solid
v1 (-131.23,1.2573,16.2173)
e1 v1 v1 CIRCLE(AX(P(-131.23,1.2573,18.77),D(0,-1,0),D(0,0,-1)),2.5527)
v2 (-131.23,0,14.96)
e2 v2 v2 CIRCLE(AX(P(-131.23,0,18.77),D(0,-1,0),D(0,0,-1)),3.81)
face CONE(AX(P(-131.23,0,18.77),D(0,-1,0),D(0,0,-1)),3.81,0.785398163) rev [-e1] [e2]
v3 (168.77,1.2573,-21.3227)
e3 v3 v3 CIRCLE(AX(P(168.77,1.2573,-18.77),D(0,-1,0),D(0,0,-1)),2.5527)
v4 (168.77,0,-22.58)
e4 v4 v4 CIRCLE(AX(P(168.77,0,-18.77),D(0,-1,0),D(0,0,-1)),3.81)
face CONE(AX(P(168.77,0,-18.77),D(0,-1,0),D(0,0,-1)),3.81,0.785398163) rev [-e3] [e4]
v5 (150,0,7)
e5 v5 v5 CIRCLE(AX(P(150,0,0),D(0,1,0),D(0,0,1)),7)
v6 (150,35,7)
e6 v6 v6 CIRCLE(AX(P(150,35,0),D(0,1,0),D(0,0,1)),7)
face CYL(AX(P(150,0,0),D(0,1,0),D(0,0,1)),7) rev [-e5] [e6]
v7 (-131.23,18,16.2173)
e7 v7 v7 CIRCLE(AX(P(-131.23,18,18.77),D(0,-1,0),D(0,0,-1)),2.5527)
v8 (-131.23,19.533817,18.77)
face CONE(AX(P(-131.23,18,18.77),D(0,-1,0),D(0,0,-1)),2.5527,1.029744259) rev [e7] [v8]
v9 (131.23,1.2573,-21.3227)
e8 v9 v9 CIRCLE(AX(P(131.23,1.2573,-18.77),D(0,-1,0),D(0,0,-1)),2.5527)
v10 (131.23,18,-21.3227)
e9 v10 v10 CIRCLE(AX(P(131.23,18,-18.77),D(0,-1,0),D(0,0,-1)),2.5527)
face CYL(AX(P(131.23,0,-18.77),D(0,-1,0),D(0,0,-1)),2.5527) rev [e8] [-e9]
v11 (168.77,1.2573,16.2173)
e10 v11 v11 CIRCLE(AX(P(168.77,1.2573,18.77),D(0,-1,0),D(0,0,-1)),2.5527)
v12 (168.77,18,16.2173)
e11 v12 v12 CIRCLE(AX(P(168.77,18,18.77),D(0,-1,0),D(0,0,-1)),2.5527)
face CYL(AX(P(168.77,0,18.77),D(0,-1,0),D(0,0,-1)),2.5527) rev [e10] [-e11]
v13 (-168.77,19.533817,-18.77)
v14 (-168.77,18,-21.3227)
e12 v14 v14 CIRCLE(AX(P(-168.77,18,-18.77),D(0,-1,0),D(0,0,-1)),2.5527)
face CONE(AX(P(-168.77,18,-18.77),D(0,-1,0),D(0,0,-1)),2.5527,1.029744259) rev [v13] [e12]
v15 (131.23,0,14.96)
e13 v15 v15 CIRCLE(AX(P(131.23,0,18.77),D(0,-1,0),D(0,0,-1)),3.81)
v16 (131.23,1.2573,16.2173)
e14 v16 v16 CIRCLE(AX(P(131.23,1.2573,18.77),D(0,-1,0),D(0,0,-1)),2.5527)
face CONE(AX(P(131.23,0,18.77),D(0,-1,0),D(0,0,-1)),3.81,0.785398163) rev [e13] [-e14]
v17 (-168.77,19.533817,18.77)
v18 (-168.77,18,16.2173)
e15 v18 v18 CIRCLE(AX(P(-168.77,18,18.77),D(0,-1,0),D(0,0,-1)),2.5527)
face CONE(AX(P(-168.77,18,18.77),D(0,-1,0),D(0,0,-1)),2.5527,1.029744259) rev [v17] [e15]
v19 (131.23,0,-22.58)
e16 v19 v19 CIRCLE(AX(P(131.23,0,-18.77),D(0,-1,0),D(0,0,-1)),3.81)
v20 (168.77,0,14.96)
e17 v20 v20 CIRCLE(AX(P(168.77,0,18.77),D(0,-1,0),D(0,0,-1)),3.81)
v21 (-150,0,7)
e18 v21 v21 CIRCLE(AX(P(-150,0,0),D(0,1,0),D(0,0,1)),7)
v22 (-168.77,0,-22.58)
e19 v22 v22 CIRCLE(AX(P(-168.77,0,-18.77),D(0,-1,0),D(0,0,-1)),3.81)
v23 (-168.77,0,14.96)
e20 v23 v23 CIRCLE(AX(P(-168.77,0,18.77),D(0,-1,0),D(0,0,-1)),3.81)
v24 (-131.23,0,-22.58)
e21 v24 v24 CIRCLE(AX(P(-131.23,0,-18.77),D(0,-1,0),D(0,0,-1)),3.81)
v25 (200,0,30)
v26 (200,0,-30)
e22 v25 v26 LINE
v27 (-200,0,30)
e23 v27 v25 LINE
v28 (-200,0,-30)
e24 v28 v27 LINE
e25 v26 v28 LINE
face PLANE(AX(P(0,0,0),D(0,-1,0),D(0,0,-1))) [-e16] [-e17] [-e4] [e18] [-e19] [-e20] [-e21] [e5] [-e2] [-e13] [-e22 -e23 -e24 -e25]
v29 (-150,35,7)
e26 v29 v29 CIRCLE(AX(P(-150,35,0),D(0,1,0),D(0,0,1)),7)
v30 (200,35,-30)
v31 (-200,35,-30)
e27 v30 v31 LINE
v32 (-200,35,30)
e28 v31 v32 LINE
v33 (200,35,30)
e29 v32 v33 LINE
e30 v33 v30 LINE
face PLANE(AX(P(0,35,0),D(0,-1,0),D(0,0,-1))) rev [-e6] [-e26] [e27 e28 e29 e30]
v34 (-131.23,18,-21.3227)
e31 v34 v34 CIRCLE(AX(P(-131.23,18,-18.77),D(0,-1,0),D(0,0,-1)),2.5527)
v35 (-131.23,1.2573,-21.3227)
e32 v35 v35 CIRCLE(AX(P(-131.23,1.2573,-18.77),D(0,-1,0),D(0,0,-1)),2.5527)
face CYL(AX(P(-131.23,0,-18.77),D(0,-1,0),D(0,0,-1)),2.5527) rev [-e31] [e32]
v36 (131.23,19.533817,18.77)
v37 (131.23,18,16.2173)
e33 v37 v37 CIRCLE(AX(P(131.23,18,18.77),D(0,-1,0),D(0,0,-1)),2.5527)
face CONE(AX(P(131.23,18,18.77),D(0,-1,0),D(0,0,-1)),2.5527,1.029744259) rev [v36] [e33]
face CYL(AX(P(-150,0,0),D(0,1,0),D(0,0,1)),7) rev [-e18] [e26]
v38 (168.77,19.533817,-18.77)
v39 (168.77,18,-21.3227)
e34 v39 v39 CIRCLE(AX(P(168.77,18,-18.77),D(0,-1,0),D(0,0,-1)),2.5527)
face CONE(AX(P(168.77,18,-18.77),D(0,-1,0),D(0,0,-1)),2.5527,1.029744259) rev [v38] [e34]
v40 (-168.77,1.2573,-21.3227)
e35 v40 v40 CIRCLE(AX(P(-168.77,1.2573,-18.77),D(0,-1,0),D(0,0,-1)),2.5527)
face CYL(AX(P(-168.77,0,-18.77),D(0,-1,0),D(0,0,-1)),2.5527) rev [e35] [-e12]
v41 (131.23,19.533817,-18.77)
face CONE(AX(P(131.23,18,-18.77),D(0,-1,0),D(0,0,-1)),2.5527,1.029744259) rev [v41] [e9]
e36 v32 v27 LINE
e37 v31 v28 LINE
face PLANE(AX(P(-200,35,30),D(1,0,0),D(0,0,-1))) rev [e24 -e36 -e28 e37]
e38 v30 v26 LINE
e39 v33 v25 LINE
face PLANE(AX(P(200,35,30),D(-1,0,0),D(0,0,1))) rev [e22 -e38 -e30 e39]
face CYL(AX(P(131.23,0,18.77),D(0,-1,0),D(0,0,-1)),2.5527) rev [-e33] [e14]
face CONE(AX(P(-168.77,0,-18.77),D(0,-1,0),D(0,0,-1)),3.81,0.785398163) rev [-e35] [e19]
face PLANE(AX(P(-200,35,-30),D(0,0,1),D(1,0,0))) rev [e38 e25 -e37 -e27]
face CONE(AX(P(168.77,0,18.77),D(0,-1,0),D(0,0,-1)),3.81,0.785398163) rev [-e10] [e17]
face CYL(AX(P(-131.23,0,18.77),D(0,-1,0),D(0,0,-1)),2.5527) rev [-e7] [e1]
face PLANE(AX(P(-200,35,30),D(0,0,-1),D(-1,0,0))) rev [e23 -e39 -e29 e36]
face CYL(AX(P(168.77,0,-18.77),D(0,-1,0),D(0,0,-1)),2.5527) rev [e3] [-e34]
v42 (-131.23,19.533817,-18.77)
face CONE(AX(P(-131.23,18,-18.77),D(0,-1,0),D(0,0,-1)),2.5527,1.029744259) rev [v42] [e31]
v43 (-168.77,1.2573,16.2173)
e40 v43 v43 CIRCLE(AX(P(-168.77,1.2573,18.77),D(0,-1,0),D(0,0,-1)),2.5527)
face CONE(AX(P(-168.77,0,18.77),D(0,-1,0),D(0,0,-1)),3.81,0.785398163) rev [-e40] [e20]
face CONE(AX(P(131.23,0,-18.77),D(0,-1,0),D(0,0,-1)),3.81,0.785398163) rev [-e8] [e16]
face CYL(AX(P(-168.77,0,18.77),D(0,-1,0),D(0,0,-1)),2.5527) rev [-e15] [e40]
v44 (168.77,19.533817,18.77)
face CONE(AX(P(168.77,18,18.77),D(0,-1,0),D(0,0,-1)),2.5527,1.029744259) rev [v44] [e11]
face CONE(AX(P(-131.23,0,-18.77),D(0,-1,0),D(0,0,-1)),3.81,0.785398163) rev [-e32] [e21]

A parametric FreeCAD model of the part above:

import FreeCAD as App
import Part
import Sketcher
Q = App.Units.Quantity


def add_polygon(sketch, points):
    """Adds a closed chain of lines whose ends are joined by coincident constraints."""
    first, n = sketch.GeometryCount, len(points)
    for a, b in zip(points, points[1:] + points[:1]):
        sketch.addGeometry(Part.LineSegment(App.Vector(*a, 0), App.Vector(*b, 0)), False)
    for i in range(n):
        sketch.addConstraint(Sketcher.Constraint("Coincident", first + i, 2, first + (i + 1) % n, 1))

doc = App.newDocument("Part")
params = doc.addObject("Spreadsheet::Sheet", "Params")
for row, (alias, value) in enumerate([
    ("sketch1_width", "400 mm"),
    ("sketch1_height", "60 mm"),
    ("pad1_length", "35 mm"),
    ("sketch2_diameter", "14 mm"),
    ("hole_diameter", "5.1054 mm"),
    ("hole_depth", "18 mm"),
    ("hole_csink_diameter", "7.62 mm"),
], start=1):
    params.set(f"A{row}", alias)
    params.set(f"B{row}", "=" + value)
    params.setAlias(f"B{row}", alias)

body = doc.addObject("PartDesign::Body", "Body")

sketch1 = body.newObject("Sketcher::SketchObject", "Sketch")
sketch1.AttachmentSupport = (doc.getObject("XZ_Plane"), [""])
sketch1.MapMode = "FlatFace"
add_polygon(sketch1, [(-200, -30), (-200, 30), (200, 30), (200, -30)])
sketch1.addConstraint(Sketcher.Constraint("Vertical", 0))
sketch1.addConstraint(Sketcher.Constraint("Horizontal", 1))
sketch1.addConstraint(Sketcher.Constraint("Vertical", 2))
sketch1.addConstraint(Sketcher.Constraint("Horizontal", 3))
sketch1.addConstraint(Sketcher.Constraint("Symmetric", 0, 2, 2, 2, -1, 1))
sketch1.addConstraint(Sketcher.Constraint("DistanceX", 1, 1, 1, 2, Q("400 mm")))
sketch1.addConstraint(Sketcher.Constraint("DistanceY", 0, 1, 0, 2, Q("60 mm")))
sketch1.setExpression("Constraints[9]", "Params.sketch1_width")
sketch1.setExpression("Constraints[10]", "Params.sketch1_height")
pad1 = body.newObject("PartDesign::Pad", "Pad")
pad1.Profile = sketch1
pad1.setExpression("Length", "Params.pad1_length")
pad1.Reversed = True

sketch2 = body.newObject("Sketcher::SketchObject", "Sketch001")
sketch2.AttachmentSupport = (doc.getObject("XZ_Plane"), [""])
sketch2.MapMode = "FlatFace"
sketch2.AttachmentOffset = App.Placement(App.Vector(0, 0, -35), App.Rotation())
sketch2.addGeometry(Part.Circle(App.Vector(-150, 0, 0), App.Vector(0, 0, 1), 7), False)
sketch2.addGeometry(Part.Circle(App.Vector(150, 0, 0), App.Vector(0, 0, 1), 7), False)
sketch2.addConstraint(Sketcher.Constraint("Equal", 0, 1))
sketch2.addConstraint(Sketcher.Constraint("Symmetric", 0, 3, 1, 3, -1, 1))
sketch2.addConstraint(Sketcher.Constraint("PointOnObject", 0, 3, -1))
sketch2.addConstraint(Sketcher.Constraint("Diameter", 0, Q("14 mm")))
sketch2.addConstraint(Sketcher.Constraint("DistanceX", 0, 3, -1, 1, Q("150 mm")))
sketch2.setExpression("Constraints[3]", "Params.sketch2_diameter")
pocket1 = body.newObject("PartDesign::Pocket", "Pocket")
pocket1.Profile = sketch2
pocket1.Type = "ThroughAll"
pocket1.Reversed = True

sketch3 = body.newObject("Sketcher::SketchObject", "Sketch002")
sketch3.AttachmentSupport = (doc.getObject("XZ_Plane"), [""])
sketch3.MapMode = "FlatFace"
sketch3.addGeometry(Part.Circle(App.Vector(-168.8, 18.8, 0), App.Vector(0, 0, 1), 2.6), False)
sketch3.addGeometry(Part.Circle(App.Vector(-131.2, 18.8, 0), App.Vector(0, 0, 1), 2.6), False)
sketch3.addGeometry(Part.Circle(App.Vector(-131.2, -18.8, 0), App.Vector(0, 0, 1), 2.6), False)
sketch3.addGeometry(Part.Circle(App.Vector(-168.8, -18.8, 0), App.Vector(0, 0, 1), 2.6), False)
sketch3.addGeometry(Part.Circle(App.Vector(131.2, 18.8, 0), App.Vector(0, 0, 1), 2.6), False)
sketch3.addGeometry(Part.Circle(App.Vector(168.8, 18.8, 0), App.Vector(0, 0, 1), 2.6), False)
sketch3.addGeometry(Part.Circle(App.Vector(168.8, -18.8, 0), App.Vector(0, 0, 1), 2.6), False)
sketch3.addGeometry(Part.Circle(App.Vector(131.2, -18.8, 0), App.Vector(0, 0, 1), 2.6), False)
sketch3.addConstraint(Sketcher.Constraint("Equal", 0, 1))
sketch3.addConstraint(Sketcher.Constraint("Equal", 1, 2))
sketch3.addConstraint(Sketcher.Constraint("Equal", 2, 3))
sketch3.addConstraint(Sketcher.Constraint("Equal", 3, 4))
sketch3.addConstraint(Sketcher.Constraint("Equal", 4, 5))
sketch3.addConstraint(Sketcher.Constraint("Equal", 5, 6))
sketch3.addConstraint(Sketcher.Constraint("Equal", 6, 7))
sketch3.addConstraint(Sketcher.Constraint("Symmetric", 2, 3, 4, 3, -1, 1))
sketch3.addConstraint(Sketcher.Constraint("Symmetric", 3, 3, 5, 3, -1, 1))
sketch3.addConstraint(Sketcher.Constraint("Symmetric", 0, 3, 6, 3, -1, 1))
sketch3.addConstraint(Sketcher.Constraint("Symmetric", 1, 3, 7, 3, -1, 1))
sketch3.addConstraint(Sketcher.Constraint("Symmetric", 1, 3, 4, 3, -2))
sketch3.addConstraint(Sketcher.Constraint("Symmetric", 0, 3, 5, 3, -2))
sketch3.addConstraint(Sketcher.Constraint("Horizontal", 0, 3, 1, 3))
sketch3.addConstraint(Sketcher.Constraint("DistanceX", 0, 3, 4, 3, Q("300 mm")))
sketch3.addConstraint(Sketcher.Constraint("Diameter", 0, Q("5.1054 mm")))
sketch3.addConstraint(Sketcher.Constraint("DistanceX", 0, 3, -1, 1, Q("168.77 mm")))
sketch3.addConstraint(Sketcher.Constraint("DistanceY", -1, 1, 0, 3, Q("18.77 mm")))
doc.recompute()
hole = body.newObject("PartDesign::Hole", "Hole")
hole.Profile = sketch3
hole.ThreadType = "None"
hole.setExpression("Diameter", "Params.hole_diameter")
hole.DepthType = "Dimension"
hole.setExpression("Depth", "Params.hole_depth")
hole.DrillPoint = "Angled"
hole.DrillPointAngle = 118
hole.HoleCutType = "Countersink"
hole.setExpression("HoleCutDiameter", "Params.hole_csink_diameter")
hole.HoleCutCountersinkAngle = 90

doc.recompute()
